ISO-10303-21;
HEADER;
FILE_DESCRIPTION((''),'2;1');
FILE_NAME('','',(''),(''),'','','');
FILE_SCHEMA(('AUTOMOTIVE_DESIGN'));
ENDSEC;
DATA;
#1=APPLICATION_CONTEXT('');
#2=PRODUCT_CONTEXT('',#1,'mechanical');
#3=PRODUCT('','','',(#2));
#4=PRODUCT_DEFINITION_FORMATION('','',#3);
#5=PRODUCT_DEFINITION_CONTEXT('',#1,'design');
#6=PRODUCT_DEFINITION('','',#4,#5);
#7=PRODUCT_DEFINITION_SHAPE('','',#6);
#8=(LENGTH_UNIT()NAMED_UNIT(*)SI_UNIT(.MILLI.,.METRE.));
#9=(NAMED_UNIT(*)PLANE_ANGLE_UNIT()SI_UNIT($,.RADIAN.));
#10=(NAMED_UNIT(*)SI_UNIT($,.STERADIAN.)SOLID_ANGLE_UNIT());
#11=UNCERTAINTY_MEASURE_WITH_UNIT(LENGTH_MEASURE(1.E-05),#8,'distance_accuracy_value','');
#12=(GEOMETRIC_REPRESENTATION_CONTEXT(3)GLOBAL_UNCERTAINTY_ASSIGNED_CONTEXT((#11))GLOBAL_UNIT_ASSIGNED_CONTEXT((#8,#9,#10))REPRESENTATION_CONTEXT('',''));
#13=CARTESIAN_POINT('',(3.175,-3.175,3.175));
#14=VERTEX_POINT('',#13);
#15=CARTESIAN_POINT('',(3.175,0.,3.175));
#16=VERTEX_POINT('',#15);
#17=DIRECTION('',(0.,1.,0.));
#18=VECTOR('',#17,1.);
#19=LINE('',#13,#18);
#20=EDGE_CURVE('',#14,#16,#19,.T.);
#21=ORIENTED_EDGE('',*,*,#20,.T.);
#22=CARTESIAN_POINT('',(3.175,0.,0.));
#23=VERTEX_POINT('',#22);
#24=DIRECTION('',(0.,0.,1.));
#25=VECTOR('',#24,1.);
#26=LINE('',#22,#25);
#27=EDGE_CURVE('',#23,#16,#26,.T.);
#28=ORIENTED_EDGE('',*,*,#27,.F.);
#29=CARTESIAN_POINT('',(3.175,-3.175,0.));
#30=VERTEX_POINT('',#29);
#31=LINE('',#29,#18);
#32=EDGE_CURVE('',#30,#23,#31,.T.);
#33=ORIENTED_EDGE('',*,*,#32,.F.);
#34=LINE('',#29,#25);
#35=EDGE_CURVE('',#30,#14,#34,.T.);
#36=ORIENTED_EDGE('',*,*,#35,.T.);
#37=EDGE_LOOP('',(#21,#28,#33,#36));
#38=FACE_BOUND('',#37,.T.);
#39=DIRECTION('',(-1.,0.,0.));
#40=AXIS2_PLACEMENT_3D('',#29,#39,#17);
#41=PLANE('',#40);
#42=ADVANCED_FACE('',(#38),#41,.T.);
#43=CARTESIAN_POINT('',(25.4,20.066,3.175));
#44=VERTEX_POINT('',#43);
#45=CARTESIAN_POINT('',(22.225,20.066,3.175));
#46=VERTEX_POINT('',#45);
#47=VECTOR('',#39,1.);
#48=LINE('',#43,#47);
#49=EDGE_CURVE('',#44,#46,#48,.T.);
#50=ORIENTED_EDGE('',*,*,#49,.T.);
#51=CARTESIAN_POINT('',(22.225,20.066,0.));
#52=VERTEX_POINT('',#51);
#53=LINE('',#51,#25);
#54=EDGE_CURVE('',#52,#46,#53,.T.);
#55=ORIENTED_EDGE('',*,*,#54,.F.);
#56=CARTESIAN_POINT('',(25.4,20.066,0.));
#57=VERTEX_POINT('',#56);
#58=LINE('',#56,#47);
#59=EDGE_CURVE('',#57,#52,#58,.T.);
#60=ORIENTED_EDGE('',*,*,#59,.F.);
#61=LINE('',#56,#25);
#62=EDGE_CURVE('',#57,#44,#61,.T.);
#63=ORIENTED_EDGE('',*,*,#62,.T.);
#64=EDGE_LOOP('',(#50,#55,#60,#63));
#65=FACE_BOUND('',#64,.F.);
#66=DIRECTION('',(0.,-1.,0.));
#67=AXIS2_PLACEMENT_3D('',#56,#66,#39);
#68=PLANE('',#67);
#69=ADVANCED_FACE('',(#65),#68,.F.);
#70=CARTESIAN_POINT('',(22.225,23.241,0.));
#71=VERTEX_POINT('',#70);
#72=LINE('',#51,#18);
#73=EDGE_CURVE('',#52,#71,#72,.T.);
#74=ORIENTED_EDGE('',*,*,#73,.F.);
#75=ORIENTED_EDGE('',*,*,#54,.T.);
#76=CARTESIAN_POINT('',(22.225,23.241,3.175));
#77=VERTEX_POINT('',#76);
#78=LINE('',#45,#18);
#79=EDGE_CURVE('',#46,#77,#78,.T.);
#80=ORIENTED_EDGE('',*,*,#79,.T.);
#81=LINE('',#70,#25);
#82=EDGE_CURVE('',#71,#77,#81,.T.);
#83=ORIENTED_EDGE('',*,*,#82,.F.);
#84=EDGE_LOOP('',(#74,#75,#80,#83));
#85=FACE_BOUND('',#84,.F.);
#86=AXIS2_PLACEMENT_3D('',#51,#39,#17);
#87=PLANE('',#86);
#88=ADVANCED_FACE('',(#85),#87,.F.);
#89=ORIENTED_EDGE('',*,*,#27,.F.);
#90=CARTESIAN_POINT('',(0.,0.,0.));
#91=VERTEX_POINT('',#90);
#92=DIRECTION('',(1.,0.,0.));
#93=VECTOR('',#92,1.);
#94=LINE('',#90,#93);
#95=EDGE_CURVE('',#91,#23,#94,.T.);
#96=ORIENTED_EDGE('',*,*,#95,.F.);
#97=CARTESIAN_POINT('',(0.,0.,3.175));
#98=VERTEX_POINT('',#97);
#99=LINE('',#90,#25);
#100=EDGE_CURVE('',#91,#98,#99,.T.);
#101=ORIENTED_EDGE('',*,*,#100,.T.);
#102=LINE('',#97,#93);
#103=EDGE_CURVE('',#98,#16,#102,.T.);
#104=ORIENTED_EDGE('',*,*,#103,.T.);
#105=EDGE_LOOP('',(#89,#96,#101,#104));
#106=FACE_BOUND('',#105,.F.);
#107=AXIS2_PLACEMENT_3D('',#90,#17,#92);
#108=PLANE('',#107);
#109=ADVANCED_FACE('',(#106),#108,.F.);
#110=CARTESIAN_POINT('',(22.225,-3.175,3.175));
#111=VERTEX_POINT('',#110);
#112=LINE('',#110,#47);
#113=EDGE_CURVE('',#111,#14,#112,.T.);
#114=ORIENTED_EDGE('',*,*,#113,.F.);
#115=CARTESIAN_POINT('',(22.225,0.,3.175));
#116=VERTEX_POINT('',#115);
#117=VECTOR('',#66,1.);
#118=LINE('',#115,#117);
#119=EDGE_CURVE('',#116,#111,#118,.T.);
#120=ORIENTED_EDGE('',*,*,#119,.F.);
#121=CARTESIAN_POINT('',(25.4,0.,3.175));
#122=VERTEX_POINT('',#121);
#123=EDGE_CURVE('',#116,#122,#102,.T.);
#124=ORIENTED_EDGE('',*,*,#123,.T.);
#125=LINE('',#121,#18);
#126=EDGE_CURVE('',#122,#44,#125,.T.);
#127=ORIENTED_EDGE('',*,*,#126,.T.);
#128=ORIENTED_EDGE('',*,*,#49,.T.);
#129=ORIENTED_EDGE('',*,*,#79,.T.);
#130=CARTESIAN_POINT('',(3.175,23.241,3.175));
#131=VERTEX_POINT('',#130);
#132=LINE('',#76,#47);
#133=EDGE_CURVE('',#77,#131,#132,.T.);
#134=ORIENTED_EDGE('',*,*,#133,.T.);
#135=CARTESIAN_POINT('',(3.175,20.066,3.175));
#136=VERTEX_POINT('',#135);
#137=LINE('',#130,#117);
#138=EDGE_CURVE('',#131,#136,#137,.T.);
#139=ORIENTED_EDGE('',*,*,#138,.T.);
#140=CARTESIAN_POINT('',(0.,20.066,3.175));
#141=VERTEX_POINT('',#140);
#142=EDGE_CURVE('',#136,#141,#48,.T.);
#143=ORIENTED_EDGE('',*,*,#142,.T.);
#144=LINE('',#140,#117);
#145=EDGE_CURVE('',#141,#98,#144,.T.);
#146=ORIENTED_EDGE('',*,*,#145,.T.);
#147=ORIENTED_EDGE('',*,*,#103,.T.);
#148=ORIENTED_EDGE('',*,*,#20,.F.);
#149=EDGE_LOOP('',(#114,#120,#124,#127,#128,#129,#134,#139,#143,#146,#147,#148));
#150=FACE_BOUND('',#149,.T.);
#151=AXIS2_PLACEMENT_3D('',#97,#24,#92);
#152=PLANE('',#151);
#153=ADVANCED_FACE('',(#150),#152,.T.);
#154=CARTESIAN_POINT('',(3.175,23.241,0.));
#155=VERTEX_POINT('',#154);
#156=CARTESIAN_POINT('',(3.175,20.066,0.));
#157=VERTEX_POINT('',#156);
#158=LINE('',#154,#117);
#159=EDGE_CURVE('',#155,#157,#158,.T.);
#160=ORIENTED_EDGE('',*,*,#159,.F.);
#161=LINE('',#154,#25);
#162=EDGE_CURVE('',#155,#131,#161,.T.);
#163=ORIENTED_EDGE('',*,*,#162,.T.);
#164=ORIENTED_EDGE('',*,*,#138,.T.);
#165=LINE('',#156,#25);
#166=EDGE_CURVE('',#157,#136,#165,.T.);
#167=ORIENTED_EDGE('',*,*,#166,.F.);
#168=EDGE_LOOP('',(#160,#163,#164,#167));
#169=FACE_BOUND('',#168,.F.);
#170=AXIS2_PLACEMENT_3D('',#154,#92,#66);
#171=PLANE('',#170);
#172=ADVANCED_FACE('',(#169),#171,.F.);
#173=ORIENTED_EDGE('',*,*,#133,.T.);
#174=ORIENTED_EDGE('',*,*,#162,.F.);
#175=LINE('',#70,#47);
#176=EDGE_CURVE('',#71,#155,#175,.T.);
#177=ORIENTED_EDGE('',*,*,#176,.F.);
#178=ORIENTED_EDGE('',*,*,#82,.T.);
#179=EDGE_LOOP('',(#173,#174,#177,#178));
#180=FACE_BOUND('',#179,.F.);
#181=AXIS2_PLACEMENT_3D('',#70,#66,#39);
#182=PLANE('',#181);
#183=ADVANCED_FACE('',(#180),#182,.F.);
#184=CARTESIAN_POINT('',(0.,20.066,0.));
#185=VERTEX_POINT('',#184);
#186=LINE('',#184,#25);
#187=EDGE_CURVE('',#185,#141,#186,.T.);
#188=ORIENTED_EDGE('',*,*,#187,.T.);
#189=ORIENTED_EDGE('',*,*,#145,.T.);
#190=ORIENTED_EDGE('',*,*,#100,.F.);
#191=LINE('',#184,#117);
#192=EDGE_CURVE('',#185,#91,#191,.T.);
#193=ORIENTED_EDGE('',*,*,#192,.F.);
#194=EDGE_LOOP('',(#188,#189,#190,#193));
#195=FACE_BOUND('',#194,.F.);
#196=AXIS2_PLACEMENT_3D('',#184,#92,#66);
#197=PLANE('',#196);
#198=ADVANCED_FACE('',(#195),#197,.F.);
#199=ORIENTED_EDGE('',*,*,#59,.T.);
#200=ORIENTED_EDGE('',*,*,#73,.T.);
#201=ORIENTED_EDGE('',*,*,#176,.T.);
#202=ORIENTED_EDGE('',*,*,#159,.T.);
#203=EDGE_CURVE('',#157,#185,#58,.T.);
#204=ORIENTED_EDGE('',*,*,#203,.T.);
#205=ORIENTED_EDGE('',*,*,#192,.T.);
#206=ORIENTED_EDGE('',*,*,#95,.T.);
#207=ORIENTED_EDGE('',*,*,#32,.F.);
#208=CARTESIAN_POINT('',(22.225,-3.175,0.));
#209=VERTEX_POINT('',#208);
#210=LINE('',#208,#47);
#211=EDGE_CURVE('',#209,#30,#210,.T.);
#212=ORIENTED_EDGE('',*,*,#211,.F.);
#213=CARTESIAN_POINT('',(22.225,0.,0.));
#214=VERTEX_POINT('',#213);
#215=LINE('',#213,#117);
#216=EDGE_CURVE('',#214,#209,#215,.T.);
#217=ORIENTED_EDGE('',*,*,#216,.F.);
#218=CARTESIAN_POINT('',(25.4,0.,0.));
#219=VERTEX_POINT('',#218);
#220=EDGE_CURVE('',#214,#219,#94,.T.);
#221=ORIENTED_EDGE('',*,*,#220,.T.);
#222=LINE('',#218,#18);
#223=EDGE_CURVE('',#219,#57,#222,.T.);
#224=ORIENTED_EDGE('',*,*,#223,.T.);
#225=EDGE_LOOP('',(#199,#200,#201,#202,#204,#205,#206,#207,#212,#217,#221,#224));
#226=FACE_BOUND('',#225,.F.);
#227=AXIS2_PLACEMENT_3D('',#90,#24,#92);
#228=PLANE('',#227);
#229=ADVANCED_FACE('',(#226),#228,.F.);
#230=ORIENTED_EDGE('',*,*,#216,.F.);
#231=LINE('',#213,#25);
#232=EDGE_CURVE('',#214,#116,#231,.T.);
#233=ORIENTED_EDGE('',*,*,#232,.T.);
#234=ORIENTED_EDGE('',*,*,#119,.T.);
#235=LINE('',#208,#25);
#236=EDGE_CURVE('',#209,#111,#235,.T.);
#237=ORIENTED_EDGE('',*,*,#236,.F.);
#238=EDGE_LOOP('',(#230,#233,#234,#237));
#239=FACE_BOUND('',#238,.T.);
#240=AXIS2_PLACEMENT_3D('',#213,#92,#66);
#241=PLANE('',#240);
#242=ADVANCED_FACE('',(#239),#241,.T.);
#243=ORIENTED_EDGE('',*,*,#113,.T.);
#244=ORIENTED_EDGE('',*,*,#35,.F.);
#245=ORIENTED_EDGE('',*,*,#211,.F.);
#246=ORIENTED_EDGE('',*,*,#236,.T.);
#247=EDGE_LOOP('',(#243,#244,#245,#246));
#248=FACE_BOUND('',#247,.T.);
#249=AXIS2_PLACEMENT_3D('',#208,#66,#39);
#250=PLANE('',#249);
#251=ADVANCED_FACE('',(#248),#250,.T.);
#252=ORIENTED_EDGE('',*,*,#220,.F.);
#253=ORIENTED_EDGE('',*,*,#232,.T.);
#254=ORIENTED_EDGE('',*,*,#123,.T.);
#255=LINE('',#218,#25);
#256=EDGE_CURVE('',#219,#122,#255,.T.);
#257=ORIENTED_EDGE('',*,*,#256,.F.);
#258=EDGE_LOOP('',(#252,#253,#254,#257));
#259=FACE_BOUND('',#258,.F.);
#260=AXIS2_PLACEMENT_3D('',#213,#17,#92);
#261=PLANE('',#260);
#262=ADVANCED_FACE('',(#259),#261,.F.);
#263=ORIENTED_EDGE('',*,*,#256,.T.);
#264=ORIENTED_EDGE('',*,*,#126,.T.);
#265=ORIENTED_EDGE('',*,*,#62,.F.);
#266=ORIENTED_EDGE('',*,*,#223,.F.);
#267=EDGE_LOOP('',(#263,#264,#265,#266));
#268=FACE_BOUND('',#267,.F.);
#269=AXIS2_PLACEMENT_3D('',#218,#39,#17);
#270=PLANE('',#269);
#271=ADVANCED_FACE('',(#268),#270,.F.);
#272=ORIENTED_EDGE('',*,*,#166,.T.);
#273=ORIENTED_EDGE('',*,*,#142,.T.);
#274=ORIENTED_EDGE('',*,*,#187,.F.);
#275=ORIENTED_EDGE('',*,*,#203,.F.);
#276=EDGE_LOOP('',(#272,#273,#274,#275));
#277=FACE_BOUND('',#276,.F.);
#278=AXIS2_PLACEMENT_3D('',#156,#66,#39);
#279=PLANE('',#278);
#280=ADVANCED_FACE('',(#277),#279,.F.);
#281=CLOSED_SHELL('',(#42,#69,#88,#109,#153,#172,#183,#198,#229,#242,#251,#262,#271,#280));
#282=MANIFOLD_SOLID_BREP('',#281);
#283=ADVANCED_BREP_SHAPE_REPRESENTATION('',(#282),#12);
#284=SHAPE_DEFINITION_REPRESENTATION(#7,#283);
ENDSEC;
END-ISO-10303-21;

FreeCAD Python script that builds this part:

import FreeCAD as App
import Part
import Sketcher
Q = App.Units.Quantity

doc = App.newDocument("Part")
params = doc.addObject("Spreadsheet::Sheet", "Params")
for row, (alias, value) in enumerate([
    ("sketch1_width", "0.75 in"),
    ("sketch1_height", "0.79 in"),
    ("sketch1_width2", "0.125 in"),
    ("pad1_length", "0.125 in"),
], start=1):
    params.set(f"A{row}", alias)
    params.set(f"B{row}", "=" + value)
    params.setAlias(f"B{row}", alias)

body = doc.addObject("PartDesign::Body", "Body")

sketch1 = body.newObject("Sketcher::SketchObject", "Sketch")
sketch1.AttachmentSupport = (doc.getObject("XY_Plane"), [""])
sketch1.MapMode = "FlatFace"
sketch1.addGeometry([
    Part.LineSegment(App.Vector(0, 20.1, 0), App.Vector(0, 0, 0)),
    Part.LineSegment(App.Vector(0, 0, 0), App.Vector(3.2, 0, 0)),
    Part.LineSegment(App.Vector(3.2, 0, 0), App.Vector(3.2, -3.2, 0)),
    Part.LineSegment(App.Vector(3.2, -3.2, 0), App.Vector(22.2, -3.2, 0)),
    Part.LineSegment(App.Vector(22.2, -3.2, 0), App.Vector(22.2, 0, 0)),
    Part.LineSegment(App.Vector(22.2, 0, 0), App.Vector(25.4, 0, 0)),
    Part.LineSegment(App.Vector(25.4, 0, 0), App.Vector(25.4, 20.1, 0)),
    Part.LineSegment(App.Vector(25.4, 20.1, 0), App.Vector(22.2, 20.1, 0)),
    Part.LineSegment(App.Vector(22.2, 20.1, 0), App.Vector(22.2, 23.2, 0)),
    Part.LineSegment(App.Vector(22.2, 23.2, 0), App.Vector(3.2, 23.2, 0)),
    Part.LineSegment(App.Vector(3.2, 23.2, 0), App.Vector(3.2, 20.1, 0)),
    Part.LineSegment(App.Vector(3.2, 20.1, 0), App.Vector(0, 20.1, 0)),
], False)
sketch1.addConstraint([
    Sketcher.Constraint("Coincident", 0, 2, 1, 1),
    Sketcher.Constraint("Coincident", 1, 2, 2, 1),
    Sketcher.Constraint("Coincident", 2, 2, 3, 1),
    Sketcher.Constraint("Coincident", 3, 2, 4, 1),
    Sketcher.Constraint("Coincident", 4, 2, 5, 1),
    Sketcher.Constraint("Coincident", 5, 2, 6, 1),
    Sketcher.Constraint("Coincident", 6, 2, 7, 1),
    Sketcher.Constraint("Coincident", 7, 2, 8, 1),
    Sketcher.Constraint("Coincident", 8, 2, 9, 1),
    Sketcher.Constraint("Coincident", 9, 2, 10, 1),
    Sketcher.Constraint("Coincident", 10, 2, 11, 1),
    Sketcher.Constraint("Coincident", 11, 2, 0, 1),
    Sketcher.Constraint("Vertical", 0),
    Sketcher.Constraint("Horizontal", 1),
    Sketcher.Constraint("Vertical", 2),
    Sketcher.Constraint("Horizontal", 3),
    Sketcher.Constraint("Vertical", 4),
    Sketcher.Constraint("Horizontal", 5),
    Sketcher.Constraint("Vertical", 6),
    Sketcher.Constraint("Horizontal", 7),
    Sketcher.Constraint("Vertical", 8),
    Sketcher.Constraint("Horizontal", 9),
    Sketcher.Constraint("Vertical", 10),
    Sketcher.Constraint("Horizontal", 11),
    Sketcher.Constraint("Coincident", 0, 2, -1, 1),
    Sketcher.Constraint("PointOnObject", 4, 2, -1),
    Sketcher.Constraint("Horizontal", 7, 2, 10, 2),
    Sketcher.Constraint("Vertical", 4, 2, 7, 2),
    Sketcher.Constraint("Vertical", 2, 2, 9, 2),
    Sketcher.Constraint("Equal", 1, 5),
    Sketcher.Constraint("Equal", 11, 2),
    Sketcher.Constraint("Equal", 4, 8),
    Sketcher.Constraint("DistanceX", 3, 1, 3, 2, Q("0.75 in")),
    Sketcher.Constraint("DistanceY", 0, 2, 0, 1, Q("0.79 in")),
    Sketcher.Constraint("DistanceX", 1, 1, 1, 2, Q("0.125 in")),
])
sketch1.setExpression("Constraints[32]", "Params.sketch1_width")
sketch1.setExpression("Constraints[33]", "Params.sketch1_height")
sketch1.setExpression("Constraints[34]", "Params.sketch1_width2")
pad1 = body.newObject("PartDesign::Pad", "Pad")
pad1.Profile = sketch1
pad1.setExpression("Length", "Params.pad1_length")

doc.recompute()
